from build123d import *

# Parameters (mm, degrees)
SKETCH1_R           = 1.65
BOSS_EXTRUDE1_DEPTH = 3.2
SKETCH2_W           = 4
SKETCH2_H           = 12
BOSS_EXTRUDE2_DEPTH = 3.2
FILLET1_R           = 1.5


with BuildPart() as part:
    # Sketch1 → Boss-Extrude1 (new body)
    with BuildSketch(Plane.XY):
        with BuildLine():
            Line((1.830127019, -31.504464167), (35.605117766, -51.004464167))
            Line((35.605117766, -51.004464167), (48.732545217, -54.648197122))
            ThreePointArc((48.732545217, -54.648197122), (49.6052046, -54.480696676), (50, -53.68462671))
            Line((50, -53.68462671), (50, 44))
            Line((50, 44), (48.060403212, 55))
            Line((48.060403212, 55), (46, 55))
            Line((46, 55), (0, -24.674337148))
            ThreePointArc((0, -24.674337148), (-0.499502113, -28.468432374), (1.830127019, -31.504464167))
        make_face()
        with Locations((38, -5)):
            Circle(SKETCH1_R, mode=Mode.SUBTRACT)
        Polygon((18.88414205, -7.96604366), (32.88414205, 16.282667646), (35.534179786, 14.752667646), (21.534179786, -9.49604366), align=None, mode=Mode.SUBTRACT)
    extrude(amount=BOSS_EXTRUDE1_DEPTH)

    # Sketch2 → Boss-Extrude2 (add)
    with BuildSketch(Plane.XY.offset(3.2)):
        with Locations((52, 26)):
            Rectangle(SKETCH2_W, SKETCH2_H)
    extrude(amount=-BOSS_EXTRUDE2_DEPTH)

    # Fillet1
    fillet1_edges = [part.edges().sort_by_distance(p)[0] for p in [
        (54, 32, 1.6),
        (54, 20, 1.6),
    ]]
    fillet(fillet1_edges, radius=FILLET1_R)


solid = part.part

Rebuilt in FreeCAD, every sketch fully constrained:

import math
import FreeCAD as App
import Part
import Sketcher
Q = App.Units.Quantity


def edges_at(feature, points):
    """Names of the edges that pass closest to the given points."""
    edges = feature.Shape.Edges
    near = lambda p: min(range(len(edges)), key=lambda i: edges[i].distToShape(Part.Vertex(*p))[0])
    return sorted({f"Edge{near(p) + 1}" for p in points})

doc = App.newDocument("Part")
body = doc.addObject("PartDesign::Body", "Body")

sketch1 = body.newObject("Sketcher::SketchObject", "Sketch")
sketch1.AttachmentSupport = (doc.getObject("XY_Plane"), [""])
sketch1.MapMode = "FlatFace"
sketch1.addGeometry(Part.LineSegment(App.Vector(1.830127, -31.504464, 0), App.Vector(35.605118, -51.004464, 0)), False)
sketch1.addGeometry(Part.LineSegment(App.Vector(35.605118, -51.004464, 0), App.Vector(48.732545, -54.648197, 0)), False)
sketch1.addGeometry(Part.ArcOfCircle(Part.Circle(App.Vector(49, -53.684627, 0), App.Vector(0, 0, 1), 1), math.radians(-105.512868), math.radians(0)), False)
sketch1.addGeometry(Part.LineSegment(App.Vector(50, -53.684627, 0), App.Vector(50, 44, 0)), False)
sketch1.addGeometry(Part.LineSegment(App.Vector(50, 44, 0), App.Vector(48.060403, 55, 0)), False)
sketch1.addGeometry(Part.LineSegment(App.Vector(48.060403, 55, 0), App.Vector(46, 55, 0)), False)
sketch1.addGeometry(Part.LineSegment(App.Vector(46, 55, 0), App.Vector(0, -24.674337, 0)), False)
sketch1.addGeometry(Part.ArcOfCircle(Part.Circle(App.Vector(4.330127, -27.174337, 0), App.Vector(0, 0, 1), 5), math.radians(150), math.radians(240)), False)
sketch1.addGeometry(Part.Circle(App.Vector(38, -5, 0), App.Vector(0, 0, 1), 1.65), False)
sketch1.addGeometry(Part.LineSegment(App.Vector(21.53418, -9.496044, 0), App.Vector(18.884142, -7.966044, 0)), False)
sketch1.addGeometry(Part.LineSegment(App.Vector(18.884142, -7.966044, 0), App.Vector(32.884142, 16.282668, 0)), False)
sketch1.addGeometry(Part.LineSegment(App.Vector(32.884142, 16.282668, 0), App.Vector(35.53418, 14.752668, 0)), False)
sketch1.addGeometry(Part.LineSegment(App.Vector(35.53418, 14.752668, 0), App.Vector(21.53418, -9.496044, 0)), False)
sketch1.addConstraint(Sketcher.Constraint("Coincident", 0, 2, 1, 1))
sketch1.addConstraint(Sketcher.Constraint("Tangent", 1, 2, 2, 1))
sketch1.addConstraint(Sketcher.Constraint("Tangent", 2, 2, 3, 1))
sketch1.addConstraint(Sketcher.Constraint("Coincident", 3, 2, 4, 1))
sketch1.addConstraint(Sketcher.Constraint("Coincident", 4, 2, 5, 1))
sketch1.addConstraint(Sketcher.Constraint("Coincident", 5, 2, 6, 1))
sketch1.addConstraint(Sketcher.Constraint("Tangent", 6, 2, 7, 1))
sketch1.addConstraint(Sketcher.Constraint("Tangent", 7, 2, 0, 1))
sketch1.addConstraint(Sketcher.Constraint("Coincident", 9, 2, 10, 1))
sketch1.addConstraint(Sketcher.Constraint("Coincident", 10, 2, 11, 1))
sketch1.addConstraint(Sketcher.Constraint("Coincident", 11, 2, 12, 1))
sketch1.addConstraint(Sketcher.Constraint("Coincident", 12, 2, 9, 1))
sketch1.addConstraint(Sketcher.Constraint("Vertical", 3))
sketch1.addConstraint(Sketcher.Constraint("Horizontal", 5))
sketch1.addConstraint(Sketcher.Constraint("PointOnObject", 6, 2, -2))
sketch1.addConstraint(Sketcher.Constraint("Perpendicular", 0, 6))
sketch1.addConstraint(Sketcher.Constraint("Perpendicular", 6, 9))
sketch1.addConstraint(Sketcher.Constraint("Perpendicular", 9, 10))
sketch1.addConstraint(Sketcher.Constraint("Perpendicular", 10, 11))
sketch1.addConstraint(Sketcher.Constraint("Perpendicular", 11, 12))
sketch1.addConstraint(Sketcher.Constraint("Radius", 2, Q("1 mm")))
sketch1.addConstraint(Sketcher.Constraint("Radius", 7, Q("5 mm")))
sketch1.addConstraint(Sketcher.Constraint("Diameter", 8, Q("3.3 mm")))
sketch1.addConstraint(Sketcher.Constraint("Angle", 0, Q("-30 deg")))
sketch1.addConstraint(Sketcher.Constraint("Angle", 4, Q("100 deg")))
sketch1.addConstraint(Sketcher.Constraint("Distance", 0, Q("39 mm")))
sketch1.addConstraint(Sketcher.Constraint("Distance", 6, Q("92 mm")))
sketch1.addConstraint(Sketcher.Constraint("Distance", 10, Q("28 mm")))
sketch1.addConstraint(Sketcher.Constraint("DistanceX", -1, 1, 2, 3, Q("49 mm")))
sketch1.addConstraint(Sketcher.Constraint("DistanceX", -1, 1, 8, 3, Q("38 mm")))
sketch1.addConstraint(Sketcher.Constraint("DistanceY", 8, 3, -1, 1, Q("5 mm")))
sketch1.addConstraint(Sketcher.Constraint("DistanceY", -1, 1, 3, 2, Q("44 mm")))
sketch1.addConstraint(Sketcher.Constraint("DistanceY", -1, 1, 4, 2, Q("55 mm")))
sketch1.addConstraint(Sketcher.Constraint("Distance", 9, Q("3.06 mm")))
sketch1.addConstraint(Sketcher.Constraint("DistanceY", 3, 1, 3, 2, Q("97.684627 mm")))
sketch1.addConstraint(Sketcher.Constraint("DistanceX", -1, 1, 11, 2, Q("35.53418 mm")))
sketch1.addConstraint(Sketcher.Constraint("DistanceY", 7, 2, 9, 2, Q("23.538421 mm")))
pad1 = body.newObject("PartDesign::Pad", "Pad")
pad1.Profile = sketch1
pad1.Length = 3.2

sketch2 = body.newObject("Sketcher::SketchObject", "Sketch001")
sketch2.AttachmentSupport = (doc.getObject("XY_Plane"), [""])
sketch2.MapMode = "FlatFace"
sketch2.AttachmentOffset = App.Placement(App.Vector(0, 0, 3.2), App.Rotation())
sketch2.addGeometry(Part.LineSegment(App.Vector(50, 32, 0), App.Vector(50, 20, 0)), False)
sketch2.addGeometry(Part.LineSegment(App.Vector(50, 20, 0), App.Vector(54, 20, 0)), False)
sketch2.addGeometry(Part.LineSegment(App.Vector(54, 20, 0), App.Vector(54, 32, 0)), False)
sketch2.addGeometry(Part.LineSegment(App.Vector(54, 32, 0), App.Vector(50, 32, 0)), False)
sketch2.addConstraint(Sketcher.Constraint("Coincident", 0, 2, 1, 1))
sketch2.addConstraint(Sketcher.Constraint("Coincident", 1, 2, 2, 1))
sketch2.addConstraint(Sketcher.Constraint("Coincident", 2, 2, 3, 1))
sketch2.addConstraint(Sketcher.Constraint("Coincident", 3, 2, 0, 1))
sketch2.addConstraint(Sketcher.Constraint("Vertical", 0))
sketch2.addConstraint(Sketcher.Constraint("Horizontal", 1))
sketch2.addConstraint(Sketcher.Constraint("Vertical", 2))
sketch2.addConstraint(Sketcher.Constraint("Horizontal", 3))
sketch2.addConstraint(Sketcher.Constraint("DistanceX", 1, 1, 1, 2, Q("4 mm")))
sketch2.addConstraint(Sketcher.Constraint("DistanceY", 0, 2, 0, 1, Q("12 mm")))
sketch2.addConstraint(Sketcher.Constraint("DistanceX", -1, 1, 0, 2, Q("50 mm")))
sketch2.addConstraint(Sketcher.Constraint("DistanceY", -1, 1, 0, 2, Q("20 mm")))
pad2 = body.newObject("PartDesign::Pad", "Pad001")
pad2.Profile = sketch2
pad2.Length = 3.2
pad2.Reversed = True
doc.recompute()

fillet = body.newObject("PartDesign::Fillet", "Fillet")
fillet.Base = (pad2, edges_at(pad2, [(54, 32, 1.6), (54, 20, 1.6)]))
fillet.Radius = 1.5

doc.recompute()
